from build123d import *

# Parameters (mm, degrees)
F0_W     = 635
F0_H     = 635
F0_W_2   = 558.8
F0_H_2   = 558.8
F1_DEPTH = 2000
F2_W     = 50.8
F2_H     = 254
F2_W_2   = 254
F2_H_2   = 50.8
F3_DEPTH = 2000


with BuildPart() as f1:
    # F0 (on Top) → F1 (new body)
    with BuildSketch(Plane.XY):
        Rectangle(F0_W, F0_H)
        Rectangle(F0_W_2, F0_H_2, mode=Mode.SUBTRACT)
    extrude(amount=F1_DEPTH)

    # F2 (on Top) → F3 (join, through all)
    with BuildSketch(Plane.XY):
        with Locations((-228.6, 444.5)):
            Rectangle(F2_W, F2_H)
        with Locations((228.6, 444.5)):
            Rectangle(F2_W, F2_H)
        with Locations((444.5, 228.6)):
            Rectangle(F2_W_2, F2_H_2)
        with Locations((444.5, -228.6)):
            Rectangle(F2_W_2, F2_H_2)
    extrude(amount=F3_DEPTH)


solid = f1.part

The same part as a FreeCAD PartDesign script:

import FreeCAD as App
import Part
import Sketcher
Q = App.Units.Quantity


def add_polygon(sketch, points):
    """Adds a closed chain of lines whose ends are joined by coincident constraints."""
    first, n = sketch.GeometryCount, len(points)
    for a, b in zip(points, points[1:] + points[:1]):
        sketch.addGeometry(Part.LineSegment(App.Vector(*a, 0), App.Vector(*b, 0)), False)
    for i in range(n):
        sketch.addConstraint(Sketcher.Constraint("Coincident", first + i, 2, first + (i + 1) % n, 1))

doc = App.newDocument("Part")
params = doc.addObject("Spreadsheet::Sheet", "Params")
for row, (alias, value) in enumerate([
    ("sketch1_width", "25 in"),
    ("sketch1_width2", "22 in"),
    ("pad1_length", "2000 mm"),
    ("sketch2_width", "2 in"),
    ("sketch2_width2", "10 in"),
    ("pad2_length", "2000 mm"),
], start=1):
    params.set(f"A{row}", alias)
    params.set(f"B{row}", "=" + value)
    params.setAlias(f"B{row}", alias)

body = doc.addObject("PartDesign::Body", "Body")

# Sketch on XY plane
sketch1 = body.newObject("Sketcher::SketchObject", "Sketch")
sketch1.AttachmentSupport = (doc.getObject("XY_Plane"), [""])
sketch1.MapMode = "FlatFace"
add_polygon(sketch1, [(-318, 318), (-318, -318), (318, -318), (318, 318)])  # lines 0-3
add_polygon(sketch1, [(279, -279), (-279, -279), (-279, 279), (279, 279)])  # lines 4-7
sketch1.addConstraint([
    Sketcher.Constraint("Vertical", 0),
    Sketcher.Constraint("Horizontal", 1),
    Sketcher.Constraint("Vertical", 2),
    Sketcher.Constraint("Horizontal", 3),
    Sketcher.Constraint("Horizontal", 4),
    Sketcher.Constraint("Vertical", 5),
    Sketcher.Constraint("Horizontal", 6),
    Sketcher.Constraint("Vertical", 7),
    Sketcher.Constraint("Symmetric", 0, 2, 2, 2, -1, 1),
    Sketcher.Constraint("Symmetric", 4, 2, 6, 2, -1, 1),
    Sketcher.Constraint("Equal", 3, 0),
    Sketcher.Constraint("Equal", 6, 5),
    Sketcher.Constraint("DistanceX", 1, 1, 1, 2, Q("25 in")),
    Sketcher.Constraint("DistanceX", 4, 2, 4, 1, Q("22 in")),
])
sketch1.setExpression("Constraints[20]", "Params.sketch1_width")
sketch1.setExpression("Constraints[21]", "Params.sketch1_width2")
pad1 = body.newObject("PartDesign::Pad", "Pad")
pad1.Profile = sketch1
pad1.setExpression("Length", "Params.pad1_length")

# Sketch on XY plane
sketch2 = body.newObject("Sketcher::SketchObject", "Sketch001")
sketch2.AttachmentSupport = (doc.getObject("XY_Plane"), [""])
sketch2.MapMode = "FlatFace"
add_polygon(sketch2, [(-254, 572), (-254, 318), (-203, 318), (-203, 572)])  # lines 0-3
add_polygon(sketch2, [(203, 572), (203, 318), (254, 318), (254, 572)])  # lines 4-7
add_polygon(sketch2, [(318, 254), (318, 203), (572, 203), (572, 254)])  # lines 8-11
add_polygon(sketch2, [(318, -203), (318, -254), (572, -254), (572, -203)])  # lines 12-15
sketch2.addConstraint([
    Sketcher.Constraint("Vertical", 0),
    Sketcher.Constraint("Horizontal", 1),
    Sketcher.Constraint("Vertical", 2),
    Sketcher.Constraint("Horizontal", 3),
    Sketcher.Constraint("Vertical", 4),
    Sketcher.Constraint("Horizontal", 5),
    Sketcher.Constraint("Vertical", 6),
    Sketcher.Constraint("Horizontal", 7),
    Sketcher.Constraint("Vertical", 8),
    Sketcher.Constraint("Horizontal", 9),
    Sketcher.Constraint("Vertical", 10),
    Sketcher.Constraint("Horizontal", 11),
    Sketcher.Constraint("Vertical", 12),
    Sketcher.Constraint("Horizontal", 13),
    Sketcher.Constraint("Vertical", 14),
    Sketcher.Constraint("Horizontal", 15),
    Sketcher.Constraint("Symmetric", 1, 2, 4, 2, -2),
    Sketcher.Constraint("Symmetric", 3, 2, 6, 2, -2),
    Sketcher.Constraint("Symmetric", 11, 2, 12, 2, -1),
    Sketcher.Constraint("Symmetric", 9, 2, 14, 2, -1),
    Sketcher.Constraint("Equal", 15, 0),
    Sketcher.Constraint("Equal", 7, 8),
    Sketcher.Constraint("DistanceX", 1, 1, 1, 2, Q("2 in")),
    Sketcher.Constraint("DistanceX", 9, 1, 9, 2, Q("10 in")),
    Sketcher.Constraint("DistanceX", 0, 2, -1, 1, Q("10 in")),
    Sketcher.Constraint("DistanceY", -1, 1, 8, 2, Q("8 in")),
    Sketcher.Constraint("DistanceY", -1, 1, 0, 2, Q("12.5 in")),
    Sketcher.Constraint("DistanceX", -1, 1, 8, 2, Q("12.5 in")),
])
sketch2.setExpression("Constraints[38]", "Params.sketch2_width")
sketch2.setExpression("Constraints[39]", "Params.sketch2_width2")
pad2 = body.newObject("PartDesign::Pad", "Pad001")
pad2.Profile = sketch2
pad2.setExpression("Length", "Params.pad2_length")

doc.recompute()
